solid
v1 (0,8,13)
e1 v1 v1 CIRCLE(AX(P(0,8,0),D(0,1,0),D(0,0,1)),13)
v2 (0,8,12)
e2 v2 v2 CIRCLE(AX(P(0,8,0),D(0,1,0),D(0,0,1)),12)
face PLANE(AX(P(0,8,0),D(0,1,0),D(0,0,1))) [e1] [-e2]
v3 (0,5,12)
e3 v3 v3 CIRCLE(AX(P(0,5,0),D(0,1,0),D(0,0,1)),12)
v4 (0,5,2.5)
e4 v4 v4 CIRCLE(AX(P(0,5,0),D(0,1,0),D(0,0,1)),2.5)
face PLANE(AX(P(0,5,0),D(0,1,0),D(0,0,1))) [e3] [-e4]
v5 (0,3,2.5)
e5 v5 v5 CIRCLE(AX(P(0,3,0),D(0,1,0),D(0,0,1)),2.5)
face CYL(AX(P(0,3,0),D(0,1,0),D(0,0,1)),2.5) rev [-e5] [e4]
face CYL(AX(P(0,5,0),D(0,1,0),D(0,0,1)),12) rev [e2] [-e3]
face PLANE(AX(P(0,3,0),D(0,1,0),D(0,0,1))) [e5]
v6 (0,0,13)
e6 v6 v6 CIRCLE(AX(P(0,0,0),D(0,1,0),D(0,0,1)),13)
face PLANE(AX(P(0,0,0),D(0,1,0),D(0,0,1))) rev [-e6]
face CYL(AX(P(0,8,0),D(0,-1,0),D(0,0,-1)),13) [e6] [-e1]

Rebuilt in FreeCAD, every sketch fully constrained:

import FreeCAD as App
import Part
import Sketcher
from FreeCAD import Vector
Q = App.Units.Quantity

doc = App.newDocument("Part")
body = doc.addObject("PartDesign::Body", "Body")

# Sketch on XZ plane
sketch1 = body.newObject("Sketcher::SketchObject", "Sketch")
sketch1.AttachmentSupport = (doc.getObject("XZ_Plane"), [""])
sketch1.MapMode = "FlatFace"
sketch1.addGeometry(Part.Circle(Vector(0, 0, 0), Vector(0, 0, 1), 13), False)
sketch1.addConstraint([
    Sketcher.Constraint("Coincident", 0, 3, -1, 1),
    Sketcher.Constraint("Diameter", 0, Q("26 mm")),
])
pad1 = body.newObject("PartDesign::Pad", "Pad")
pad1.Profile = sketch1
pad1.Length = 8
pad1.Reversed = True

# Sketch on XZ plane
sketch2 = body.newObject("Sketcher::SketchObject", "Sketch001")
sketch2.AttachmentSupport = (doc.getObject("XZ_Plane"), [""])
sketch2.MapMode = "FlatFace"
sketch2.AttachmentOffset = App.Placement(Vector(0, 0, -8), App.Rotation())
sketch2.addGeometry(Part.Circle(Vector(0, 0, 0), Vector(0, 0, 1), 12), False)
sketch2.addConstraint([
    Sketcher.Constraint("Coincident", 0, 3, -1, 1),
    Sketcher.Constraint("Diameter", 0, Q("24 mm")),
])
pocket1 = body.newObject("PartDesign::Pocket", "Pocket")
pocket1.Profile = sketch2
pocket1.Length = 3
pocket1.Reversed = True

# Sketch on XZ plane
sketch3 = body.newObject("Sketcher::SketchObject", "Sketch002")
sketch3.AttachmentSupport = (doc.getObject("XZ_Plane"), [""])
sketch3.MapMode = "FlatFace"
sketch3.AttachmentOffset = App.Placement(Vector(0, 0, -5), App.Rotation())
sketch3.addGeometry(Part.Circle(Vector(0, 0, 0), Vector(0, 0, 1), 2.5), False)
sketch3.addConstraint([
    Sketcher.Constraint("Coincident", 0, 3, -1, 1),
    Sketcher.Constraint("Diameter", 0, Q("5 mm")),
])
pocket2 = body.newObject("PartDesign::Pocket", "Pocket001")
pocket2.Profile = sketch3
pocket2.Length = 2
pocket2.Reversed = True

doc.recompute()
